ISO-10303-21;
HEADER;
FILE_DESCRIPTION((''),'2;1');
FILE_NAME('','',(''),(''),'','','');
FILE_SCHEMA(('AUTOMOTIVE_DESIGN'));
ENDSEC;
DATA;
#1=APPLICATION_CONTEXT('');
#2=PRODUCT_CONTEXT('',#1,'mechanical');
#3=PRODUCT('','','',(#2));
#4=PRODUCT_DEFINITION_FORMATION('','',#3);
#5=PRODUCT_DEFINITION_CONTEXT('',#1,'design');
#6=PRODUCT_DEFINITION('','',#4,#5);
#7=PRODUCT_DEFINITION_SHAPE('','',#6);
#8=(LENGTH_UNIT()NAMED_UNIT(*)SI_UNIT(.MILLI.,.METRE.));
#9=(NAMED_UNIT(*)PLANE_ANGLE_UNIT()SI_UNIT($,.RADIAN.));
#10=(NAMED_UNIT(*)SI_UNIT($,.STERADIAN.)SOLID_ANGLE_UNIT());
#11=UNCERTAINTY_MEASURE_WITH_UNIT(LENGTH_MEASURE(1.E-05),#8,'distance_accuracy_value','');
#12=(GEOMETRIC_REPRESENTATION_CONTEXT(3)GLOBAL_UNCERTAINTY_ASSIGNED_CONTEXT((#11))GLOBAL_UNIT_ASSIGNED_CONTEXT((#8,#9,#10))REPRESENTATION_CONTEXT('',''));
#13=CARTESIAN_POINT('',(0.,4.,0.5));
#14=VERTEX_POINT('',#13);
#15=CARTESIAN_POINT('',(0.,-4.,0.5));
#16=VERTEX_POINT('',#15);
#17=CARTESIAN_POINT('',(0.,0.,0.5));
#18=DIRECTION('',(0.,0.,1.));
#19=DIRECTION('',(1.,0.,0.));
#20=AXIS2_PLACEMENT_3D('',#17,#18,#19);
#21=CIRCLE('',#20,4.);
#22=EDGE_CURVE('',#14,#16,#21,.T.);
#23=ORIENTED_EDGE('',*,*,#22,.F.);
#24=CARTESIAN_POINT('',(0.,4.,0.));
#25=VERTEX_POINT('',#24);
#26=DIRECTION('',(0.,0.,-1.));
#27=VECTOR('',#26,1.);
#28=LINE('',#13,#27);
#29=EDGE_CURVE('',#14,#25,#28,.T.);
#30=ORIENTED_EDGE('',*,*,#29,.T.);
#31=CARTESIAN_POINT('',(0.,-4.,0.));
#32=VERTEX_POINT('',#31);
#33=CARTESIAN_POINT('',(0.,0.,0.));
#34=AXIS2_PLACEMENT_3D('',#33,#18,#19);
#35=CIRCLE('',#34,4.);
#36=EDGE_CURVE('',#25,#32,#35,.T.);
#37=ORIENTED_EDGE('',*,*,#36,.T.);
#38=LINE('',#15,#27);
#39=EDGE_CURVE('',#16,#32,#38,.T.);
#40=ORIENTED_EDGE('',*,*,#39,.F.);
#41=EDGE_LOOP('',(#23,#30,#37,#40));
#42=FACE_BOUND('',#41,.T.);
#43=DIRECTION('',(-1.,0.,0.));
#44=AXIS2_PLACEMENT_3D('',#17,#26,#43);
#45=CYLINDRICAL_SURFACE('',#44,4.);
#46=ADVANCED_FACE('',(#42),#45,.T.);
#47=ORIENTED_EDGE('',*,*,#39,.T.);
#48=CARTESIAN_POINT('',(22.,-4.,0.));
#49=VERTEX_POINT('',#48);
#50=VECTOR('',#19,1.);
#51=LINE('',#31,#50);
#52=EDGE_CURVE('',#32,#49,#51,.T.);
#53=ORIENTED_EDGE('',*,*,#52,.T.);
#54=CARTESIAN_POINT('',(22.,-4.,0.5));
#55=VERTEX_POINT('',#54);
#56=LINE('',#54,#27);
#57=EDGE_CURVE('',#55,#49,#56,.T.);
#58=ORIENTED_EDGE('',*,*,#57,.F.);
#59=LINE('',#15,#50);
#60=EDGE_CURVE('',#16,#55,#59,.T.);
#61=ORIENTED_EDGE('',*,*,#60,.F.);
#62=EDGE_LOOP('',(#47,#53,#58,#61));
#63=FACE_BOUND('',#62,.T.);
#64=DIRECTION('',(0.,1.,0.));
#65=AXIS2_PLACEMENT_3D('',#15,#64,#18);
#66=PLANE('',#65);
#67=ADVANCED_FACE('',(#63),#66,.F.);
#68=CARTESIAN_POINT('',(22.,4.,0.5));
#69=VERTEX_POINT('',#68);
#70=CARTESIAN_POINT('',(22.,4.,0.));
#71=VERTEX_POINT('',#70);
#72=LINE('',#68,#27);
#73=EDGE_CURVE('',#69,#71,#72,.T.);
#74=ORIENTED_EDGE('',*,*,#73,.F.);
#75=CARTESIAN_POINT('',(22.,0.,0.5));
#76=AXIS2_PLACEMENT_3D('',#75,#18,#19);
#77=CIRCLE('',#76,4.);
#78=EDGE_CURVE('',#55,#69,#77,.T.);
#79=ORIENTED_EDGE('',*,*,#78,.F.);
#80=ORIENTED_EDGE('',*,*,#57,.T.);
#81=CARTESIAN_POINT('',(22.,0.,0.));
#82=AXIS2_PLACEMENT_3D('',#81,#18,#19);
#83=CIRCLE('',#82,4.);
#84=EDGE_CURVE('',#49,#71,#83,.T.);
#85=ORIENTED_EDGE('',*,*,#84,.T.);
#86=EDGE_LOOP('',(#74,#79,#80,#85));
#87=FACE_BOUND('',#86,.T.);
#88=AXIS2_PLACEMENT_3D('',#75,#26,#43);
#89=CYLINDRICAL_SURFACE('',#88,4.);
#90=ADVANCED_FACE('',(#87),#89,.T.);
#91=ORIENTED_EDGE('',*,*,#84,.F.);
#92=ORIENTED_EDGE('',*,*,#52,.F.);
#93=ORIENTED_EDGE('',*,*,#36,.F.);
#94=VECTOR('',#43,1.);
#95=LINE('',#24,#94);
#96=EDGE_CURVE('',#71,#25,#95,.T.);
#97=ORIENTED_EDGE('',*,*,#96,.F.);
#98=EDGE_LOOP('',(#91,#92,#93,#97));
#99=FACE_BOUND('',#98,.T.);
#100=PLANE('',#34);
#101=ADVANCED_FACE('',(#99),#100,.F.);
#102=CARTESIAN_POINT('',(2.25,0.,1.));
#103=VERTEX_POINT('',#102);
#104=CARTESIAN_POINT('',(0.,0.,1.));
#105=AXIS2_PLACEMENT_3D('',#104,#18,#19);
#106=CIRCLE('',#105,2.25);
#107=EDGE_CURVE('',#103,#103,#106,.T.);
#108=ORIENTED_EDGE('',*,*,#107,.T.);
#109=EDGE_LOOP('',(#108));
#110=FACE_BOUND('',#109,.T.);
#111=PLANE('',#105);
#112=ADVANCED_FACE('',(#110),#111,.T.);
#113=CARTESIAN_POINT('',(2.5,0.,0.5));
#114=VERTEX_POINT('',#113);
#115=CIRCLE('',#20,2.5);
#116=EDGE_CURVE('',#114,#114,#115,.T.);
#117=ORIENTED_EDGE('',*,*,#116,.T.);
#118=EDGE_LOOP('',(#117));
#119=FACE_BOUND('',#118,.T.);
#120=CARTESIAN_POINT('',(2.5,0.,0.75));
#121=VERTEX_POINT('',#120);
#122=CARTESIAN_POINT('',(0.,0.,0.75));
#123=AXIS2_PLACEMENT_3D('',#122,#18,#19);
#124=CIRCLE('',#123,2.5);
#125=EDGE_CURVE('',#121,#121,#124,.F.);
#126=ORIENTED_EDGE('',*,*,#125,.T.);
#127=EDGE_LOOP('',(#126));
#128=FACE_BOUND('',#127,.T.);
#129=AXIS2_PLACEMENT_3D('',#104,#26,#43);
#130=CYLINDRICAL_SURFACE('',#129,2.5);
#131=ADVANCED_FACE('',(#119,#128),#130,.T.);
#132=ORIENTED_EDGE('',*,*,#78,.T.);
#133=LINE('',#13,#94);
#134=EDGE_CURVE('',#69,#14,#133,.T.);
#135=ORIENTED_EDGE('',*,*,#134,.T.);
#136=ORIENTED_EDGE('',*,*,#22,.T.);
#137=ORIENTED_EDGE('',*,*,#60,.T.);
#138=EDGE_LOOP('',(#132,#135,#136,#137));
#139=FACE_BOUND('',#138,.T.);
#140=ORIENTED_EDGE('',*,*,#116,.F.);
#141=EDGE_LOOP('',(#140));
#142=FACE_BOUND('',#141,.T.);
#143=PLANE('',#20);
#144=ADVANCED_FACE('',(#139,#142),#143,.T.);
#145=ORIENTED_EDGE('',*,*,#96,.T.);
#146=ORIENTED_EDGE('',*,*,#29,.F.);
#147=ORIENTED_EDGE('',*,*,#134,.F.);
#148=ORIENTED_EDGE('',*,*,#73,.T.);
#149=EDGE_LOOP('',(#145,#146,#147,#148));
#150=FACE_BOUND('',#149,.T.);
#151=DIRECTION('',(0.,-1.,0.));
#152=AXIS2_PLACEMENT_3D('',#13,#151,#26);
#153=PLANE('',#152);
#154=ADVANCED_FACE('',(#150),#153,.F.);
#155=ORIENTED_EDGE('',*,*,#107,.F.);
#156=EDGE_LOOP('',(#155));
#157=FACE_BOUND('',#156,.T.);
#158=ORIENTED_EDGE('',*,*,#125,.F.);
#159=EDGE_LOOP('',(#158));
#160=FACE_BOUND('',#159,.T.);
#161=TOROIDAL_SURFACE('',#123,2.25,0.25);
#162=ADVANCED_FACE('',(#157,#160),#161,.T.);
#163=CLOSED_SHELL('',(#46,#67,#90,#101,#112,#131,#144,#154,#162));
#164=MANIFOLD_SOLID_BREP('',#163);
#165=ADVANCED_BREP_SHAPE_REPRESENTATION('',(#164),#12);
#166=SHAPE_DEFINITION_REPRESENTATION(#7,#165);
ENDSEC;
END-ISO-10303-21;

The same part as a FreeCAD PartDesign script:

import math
import FreeCAD as App
import Part
import Sketcher


def edges_at(feature, points):
    """Names of the edges that pass closest to the given points."""
    edges = feature.Shape.Edges
    near = lambda p: min(range(len(edges)), key=lambda i: edges[i].distToShape(Part.Vertex(*p))[0])
    return sorted({f"Edge{near(p) + 1}" for p in points})

doc = App.newDocument("Part")
body = doc.addObject("PartDesign::Body", "Body")

sketch1 = body.newObject("Sketcher::SketchObject", "Sketch")
sketch1.AttachmentSupport = (doc.getObject("XY_Plane"), [""])
sketch1.MapMode = "FlatFace"
sketch1.addGeometry(Part.LineSegment(App.Vector(22, 4, 0), App.Vector(0, 4, 0)), False)
sketch1.addGeometry(Part.ArcOfCircle(Part.Circle(App.Vector(0, 0, 0), App.Vector(0, 0, 1), 4), math.radians(90), math.radians(270)), False)
sketch1.addGeometry(Part.LineSegment(App.Vector(0, -4, 0), App.Vector(22, -4, 0)), False)
sketch1.addGeometry(Part.ArcOfCircle(Part.Circle(App.Vector(22, 0, 0), App.Vector(0, 0, 1), 4), math.radians(-90), math.radians(90)), False)
sketch1.addConstraint(Sketcher.Constraint("Tangent", 0, 2, 1, 1))
sketch1.addConstraint(Sketcher.Constraint("Tangent", 1, 2, 2, 1))
sketch1.addConstraint(Sketcher.Constraint("Tangent", 2, 2, 3, 1))
sketch1.addConstraint(Sketcher.Constraint("Tangent", 3, 2, 0, 1))
sketch1.addConstraint(Sketcher.Constraint("Horizontal", 0))
sketch1.addConstraint(Sketcher.Constraint("Horizontal", 2))
sketch1.addConstraint(Sketcher.Constraint("Coincident", 1, 3, -1, 1))
sketch1.addConstraint(Sketcher.Constraint("Radius", 1, 4.0))
sketch1.addConstraint(Sketcher.Constraint("DistanceX", 0, 2, 0, 1, 22.0))
pad1 = body.newObject("PartDesign::Pad", "Pad")
pad1.Profile = sketch1
pad1.Length = 0.5

sketch2 = body.newObject("Sketcher::SketchObject", "Sketch001")
sketch2.AttachmentSupport = (doc.getObject("XY_Plane"), [""])
sketch2.MapMode = "FlatFace"
sketch2.AttachmentOffset = App.Placement(App.Vector(0, 0, 0.5), App.Rotation())
sketch2.addGeometry(Part.Circle(App.Vector(0, 0, 0), App.Vector(0, 0, 1), 2.5), False)
sketch2.addConstraint(Sketcher.Constraint("Coincident", 0, 3, -1, 1))
sketch2.addConstraint(Sketcher.Constraint("Diameter", 0, 5.0))
pad2 = body.newObject("PartDesign::Pad", "Pad001")
pad2.Profile = sketch2
pad2.Length = 0.5
doc.recompute()

fillet = body.newObject("PartDesign::Fillet", "Fillet")
fillet.Base = (pad2, edges_at(pad2, [(-2.5, 0, 1)]))
fillet.Radius = 0.25

doc.recompute()
